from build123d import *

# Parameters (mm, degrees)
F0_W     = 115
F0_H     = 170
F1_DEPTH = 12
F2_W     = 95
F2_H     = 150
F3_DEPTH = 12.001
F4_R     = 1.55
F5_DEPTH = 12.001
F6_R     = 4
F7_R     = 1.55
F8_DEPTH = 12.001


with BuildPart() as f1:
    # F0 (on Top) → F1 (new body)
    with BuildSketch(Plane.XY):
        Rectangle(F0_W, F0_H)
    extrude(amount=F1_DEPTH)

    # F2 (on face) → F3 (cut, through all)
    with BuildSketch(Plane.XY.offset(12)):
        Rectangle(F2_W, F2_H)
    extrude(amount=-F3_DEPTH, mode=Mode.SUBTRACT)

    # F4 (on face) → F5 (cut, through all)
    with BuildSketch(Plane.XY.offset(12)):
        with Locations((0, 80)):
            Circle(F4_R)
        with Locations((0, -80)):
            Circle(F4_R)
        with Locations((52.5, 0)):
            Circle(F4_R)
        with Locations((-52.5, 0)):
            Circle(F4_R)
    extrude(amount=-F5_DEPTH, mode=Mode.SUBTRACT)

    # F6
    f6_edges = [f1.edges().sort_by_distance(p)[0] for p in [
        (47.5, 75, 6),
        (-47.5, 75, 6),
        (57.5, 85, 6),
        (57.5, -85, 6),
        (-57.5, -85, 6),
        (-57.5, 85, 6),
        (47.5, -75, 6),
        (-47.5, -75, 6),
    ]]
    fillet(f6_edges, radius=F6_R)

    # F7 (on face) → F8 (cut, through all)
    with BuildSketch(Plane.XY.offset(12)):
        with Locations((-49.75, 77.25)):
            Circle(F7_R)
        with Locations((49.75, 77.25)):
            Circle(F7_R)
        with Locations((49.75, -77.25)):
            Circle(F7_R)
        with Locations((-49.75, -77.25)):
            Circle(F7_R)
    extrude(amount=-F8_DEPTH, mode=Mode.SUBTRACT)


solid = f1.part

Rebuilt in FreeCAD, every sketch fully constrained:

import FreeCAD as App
import Part
import Sketcher

V = App.Vector
Q = App.Units.Quantity


def edges_at(feature, points):
    """Names of the edges that pass closest to the given points."""
    edges = feature.Shape.Edges
    near = lambda p: min(range(len(edges)), key=lambda i: edges[i].distToShape(Part.Vertex(*p))[0])
    return sorted({f"Edge{near(p) + 1}" for p in points})

doc = App.newDocument("Part")
body = doc.addObject("PartDesign::Body", "Body")

# Sketch on XY plane
sketch1 = body.newObject("Sketcher::SketchObject", "Sketch")
sketch1.AttachmentSupport = (doc.getObject("XY_Plane"), [""])
sketch1.MapMode = "FlatFace"
sketch1.addGeometry(Part.LineSegment(V(-58, 85, 0), V(-58, -85, 0)), False)
sketch1.addGeometry(Part.LineSegment(V(-58, -85, 0), V(58, -85, 0)), False)
sketch1.addGeometry(Part.LineSegment(V(58, -85, 0), V(58, 85, 0)), False)
sketch1.addGeometry(Part.LineSegment(V(58, 85, 0), V(-58, 85, 0)), False)
sketch1.addConstraint(Sketcher.Constraint("Coincident", 0, 2, 1, 1))
sketch1.addConstraint(Sketcher.Constraint("Coincident", 1, 2, 2, 1))
sketch1.addConstraint(Sketcher.Constraint("Coincident", 2, 2, 3, 1))
sketch1.addConstraint(Sketcher.Constraint("Coincident", 3, 2, 0, 1))
sketch1.addConstraint(Sketcher.Constraint("Vertical", 0))
sketch1.addConstraint(Sketcher.Constraint("Horizontal", 1))
sketch1.addConstraint(Sketcher.Constraint("Vertical", 2))
sketch1.addConstraint(Sketcher.Constraint("Horizontal", 3))
sketch1.addConstraint(Sketcher.Constraint("Symmetric", 0, 2, 2, 2, -1, 1))
sketch1.addConstraint(Sketcher.Constraint("DistanceX", 1, 1, 1, 2, Q("115 mm")))
sketch1.addConstraint(Sketcher.Constraint("DistanceY", 0, 2, 0, 1, Q("170 mm")))
pad1 = body.newObject("PartDesign::Pad", "Pad")
pad1.Profile = sketch1
pad1.Length = 12

# Sketch on XY plane
sketch2 = body.newObject("Sketcher::SketchObject", "Sketch001")
sketch2.AttachmentSupport = (doc.getObject("XY_Plane"), [""])
sketch2.MapMode = "FlatFace"
sketch2.AttachmentOffset = App.Placement(V(0, 0, 12), App.Rotation())
sketch2.addGeometry(Part.LineSegment(V(-48, 75, 0), V(-48, -75, 0)), False)
sketch2.addGeometry(Part.LineSegment(V(-48, -75, 0), V(48, -75, 0)), False)
sketch2.addGeometry(Part.LineSegment(V(48, -75, 0), V(48, 75, 0)), False)
sketch2.addGeometry(Part.LineSegment(V(48, 75, 0), V(-48, 75, 0)), False)
sketch2.addConstraint(Sketcher.Constraint("Coincident", 0, 2, 1, 1))
sketch2.addConstraint(Sketcher.Constraint("Coincident", 1, 2, 2, 1))
sketch2.addConstraint(Sketcher.Constraint("Coincident", 2, 2, 3, 1))
sketch2.addConstraint(Sketcher.Constraint("Coincident", 3, 2, 0, 1))
sketch2.addConstraint(Sketcher.Constraint("Vertical", 0))
sketch2.addConstraint(Sketcher.Constraint("Horizontal", 1))
sketch2.addConstraint(Sketcher.Constraint("Vertical", 2))
sketch2.addConstraint(Sketcher.Constraint("Horizontal", 3))
sketch2.addConstraint(Sketcher.Constraint("Symmetric", 0, 2, 2, 2, -1, 1))
sketch2.addConstraint(Sketcher.Constraint("DistanceX", 1, 1, 1, 2, Q("95 mm")))
sketch2.addConstraint(Sketcher.Constraint("DistanceY", 0, 2, 0, 1, Q("150 mm")))
pocket1 = body.newObject("PartDesign::Pocket", "Pocket")
pocket1.Profile = sketch2
pocket1.Type = "ThroughAll"

# Sketch on XY plane
sketch3 = body.newObject("Sketcher::SketchObject", "Sketch002")
sketch3.AttachmentSupport = (doc.getObject("XY_Plane"), [""])
sketch3.MapMode = "FlatFace"
sketch3.AttachmentOffset = App.Placement(V(0, 0, 12), App.Rotation())
sketch3.addGeometry(Part.Circle(V(0, 80, 0), V(0, 0, 1), 1.6), False)
sketch3.addGeometry(Part.Circle(V(0, -80, 0), V(0, 0, 1), 1.6), False)
sketch3.addGeometry(Part.Circle(V(52.5, 0, 0), V(0, 0, 1), 1.6), False)
sketch3.addGeometry(Part.Circle(V(-52.5, 0, 0), V(0, 0, 1), 1.6), False)
sketch3.addConstraint(Sketcher.Constraint("Equal", 0, 1))
sketch3.addConstraint(Sketcher.Constraint("Equal", 1, 2))
sketch3.addConstraint(Sketcher.Constraint("Equal", 2, 3))
sketch3.addConstraint(Sketcher.Constraint("Symmetric", 0, 3, 1, 3, -1, 1))
sketch3.addConstraint(Sketcher.Constraint("Symmetric", 2, 3, 3, 3, -1, 1))
sketch3.addConstraint(Sketcher.Constraint("PointOnObject", 0, 3, -2))
sketch3.addConstraint(Sketcher.Constraint("PointOnObject", 2, 3, -1))
sketch3.addConstraint(Sketcher.Constraint("Diameter", 0, Q("3.1 mm")))
sketch3.addConstraint(Sketcher.Constraint("DistanceY", -1, 1, 0, 3, Q("80 mm")))
sketch3.addConstraint(Sketcher.Constraint("DistanceX", 3, 3, 2, 3, Q("105 mm")))
pocket2 = body.newObject("PartDesign::Pocket", "Pocket001")
pocket2.Profile = sketch3
pocket2.Type = "ThroughAll"
doc.recompute()

fillet = body.newObject("PartDesign::Fillet", "Fillet")
fillet.Base = (pocket2, edges_at(pocket2, [
    (47.5, 75, 6),
    (-47.5, 75, 6),
    (57.5, 85, 6),
    (57.5, -85, 6),
    (-57.5, -85, 6),
    (-57.5, 85, 6),
    (47.5, -75, 6),
    (-47.5, -75, 6),
]))
fillet.Radius = 4

# Sketch on XY plane
sketch4 = body.newObject("Sketcher::SketchObject", "Sketch003")
sketch4.AttachmentSupport = (doc.getObject("XY_Plane"), [""])
sketch4.MapMode = "FlatFace"
sketch4.AttachmentOffset = App.Placement(V(0, 0, 12), App.Rotation())
sketch4.addGeometry(Part.Circle(V(-49.8, 77.2, 0), V(0, 0, 1), 1.6), False)
sketch4.addGeometry(Part.Circle(V(49.8, 77.2, 0), V(0, 0, 1), 1.6), False)
sketch4.addGeometry(Part.Circle(V(49.8, -77.2, 0), V(0, 0, 1), 1.6), False)
sketch4.addGeometry(Part.Circle(V(-49.8, -77.2, 0), V(0, 0, 1), 1.6), False)
sketch4.addConstraint(Sketcher.Constraint("Equal", 0, 1))
sketch4.addConstraint(Sketcher.Constraint("Equal", 1, 2))
sketch4.addConstraint(Sketcher.Constraint("Equal", 2, 3))
sketch4.addConstraint(Sketcher.Constraint("Symmetric", 0, 3, 2, 3, -1, 1))
sketch4.addConstraint(Sketcher.Constraint("Symmetric", 1, 3, 3, 3, -1, 1))
sketch4.addConstraint(Sketcher.Constraint("Symmetric", 0, 3, 1, 3, -2))
sketch4.addConstraint(Sketcher.Constraint("Diameter", 0, Q("3.1 mm")))
sketch4.addConstraint(Sketcher.Constraint("DistanceX", 0, 3, 1, 3, Q("99.5 mm")))
sketch4.addConstraint(Sketcher.Constraint("DistanceY", 2, 3, 1, 3, Q("154.5 mm")))
pocket3 = body.newObject("PartDesign::Pocket", "Pocket002")
pocket3.Profile = sketch4
pocket3.Type = "ThroughAll"

doc.recompute()
